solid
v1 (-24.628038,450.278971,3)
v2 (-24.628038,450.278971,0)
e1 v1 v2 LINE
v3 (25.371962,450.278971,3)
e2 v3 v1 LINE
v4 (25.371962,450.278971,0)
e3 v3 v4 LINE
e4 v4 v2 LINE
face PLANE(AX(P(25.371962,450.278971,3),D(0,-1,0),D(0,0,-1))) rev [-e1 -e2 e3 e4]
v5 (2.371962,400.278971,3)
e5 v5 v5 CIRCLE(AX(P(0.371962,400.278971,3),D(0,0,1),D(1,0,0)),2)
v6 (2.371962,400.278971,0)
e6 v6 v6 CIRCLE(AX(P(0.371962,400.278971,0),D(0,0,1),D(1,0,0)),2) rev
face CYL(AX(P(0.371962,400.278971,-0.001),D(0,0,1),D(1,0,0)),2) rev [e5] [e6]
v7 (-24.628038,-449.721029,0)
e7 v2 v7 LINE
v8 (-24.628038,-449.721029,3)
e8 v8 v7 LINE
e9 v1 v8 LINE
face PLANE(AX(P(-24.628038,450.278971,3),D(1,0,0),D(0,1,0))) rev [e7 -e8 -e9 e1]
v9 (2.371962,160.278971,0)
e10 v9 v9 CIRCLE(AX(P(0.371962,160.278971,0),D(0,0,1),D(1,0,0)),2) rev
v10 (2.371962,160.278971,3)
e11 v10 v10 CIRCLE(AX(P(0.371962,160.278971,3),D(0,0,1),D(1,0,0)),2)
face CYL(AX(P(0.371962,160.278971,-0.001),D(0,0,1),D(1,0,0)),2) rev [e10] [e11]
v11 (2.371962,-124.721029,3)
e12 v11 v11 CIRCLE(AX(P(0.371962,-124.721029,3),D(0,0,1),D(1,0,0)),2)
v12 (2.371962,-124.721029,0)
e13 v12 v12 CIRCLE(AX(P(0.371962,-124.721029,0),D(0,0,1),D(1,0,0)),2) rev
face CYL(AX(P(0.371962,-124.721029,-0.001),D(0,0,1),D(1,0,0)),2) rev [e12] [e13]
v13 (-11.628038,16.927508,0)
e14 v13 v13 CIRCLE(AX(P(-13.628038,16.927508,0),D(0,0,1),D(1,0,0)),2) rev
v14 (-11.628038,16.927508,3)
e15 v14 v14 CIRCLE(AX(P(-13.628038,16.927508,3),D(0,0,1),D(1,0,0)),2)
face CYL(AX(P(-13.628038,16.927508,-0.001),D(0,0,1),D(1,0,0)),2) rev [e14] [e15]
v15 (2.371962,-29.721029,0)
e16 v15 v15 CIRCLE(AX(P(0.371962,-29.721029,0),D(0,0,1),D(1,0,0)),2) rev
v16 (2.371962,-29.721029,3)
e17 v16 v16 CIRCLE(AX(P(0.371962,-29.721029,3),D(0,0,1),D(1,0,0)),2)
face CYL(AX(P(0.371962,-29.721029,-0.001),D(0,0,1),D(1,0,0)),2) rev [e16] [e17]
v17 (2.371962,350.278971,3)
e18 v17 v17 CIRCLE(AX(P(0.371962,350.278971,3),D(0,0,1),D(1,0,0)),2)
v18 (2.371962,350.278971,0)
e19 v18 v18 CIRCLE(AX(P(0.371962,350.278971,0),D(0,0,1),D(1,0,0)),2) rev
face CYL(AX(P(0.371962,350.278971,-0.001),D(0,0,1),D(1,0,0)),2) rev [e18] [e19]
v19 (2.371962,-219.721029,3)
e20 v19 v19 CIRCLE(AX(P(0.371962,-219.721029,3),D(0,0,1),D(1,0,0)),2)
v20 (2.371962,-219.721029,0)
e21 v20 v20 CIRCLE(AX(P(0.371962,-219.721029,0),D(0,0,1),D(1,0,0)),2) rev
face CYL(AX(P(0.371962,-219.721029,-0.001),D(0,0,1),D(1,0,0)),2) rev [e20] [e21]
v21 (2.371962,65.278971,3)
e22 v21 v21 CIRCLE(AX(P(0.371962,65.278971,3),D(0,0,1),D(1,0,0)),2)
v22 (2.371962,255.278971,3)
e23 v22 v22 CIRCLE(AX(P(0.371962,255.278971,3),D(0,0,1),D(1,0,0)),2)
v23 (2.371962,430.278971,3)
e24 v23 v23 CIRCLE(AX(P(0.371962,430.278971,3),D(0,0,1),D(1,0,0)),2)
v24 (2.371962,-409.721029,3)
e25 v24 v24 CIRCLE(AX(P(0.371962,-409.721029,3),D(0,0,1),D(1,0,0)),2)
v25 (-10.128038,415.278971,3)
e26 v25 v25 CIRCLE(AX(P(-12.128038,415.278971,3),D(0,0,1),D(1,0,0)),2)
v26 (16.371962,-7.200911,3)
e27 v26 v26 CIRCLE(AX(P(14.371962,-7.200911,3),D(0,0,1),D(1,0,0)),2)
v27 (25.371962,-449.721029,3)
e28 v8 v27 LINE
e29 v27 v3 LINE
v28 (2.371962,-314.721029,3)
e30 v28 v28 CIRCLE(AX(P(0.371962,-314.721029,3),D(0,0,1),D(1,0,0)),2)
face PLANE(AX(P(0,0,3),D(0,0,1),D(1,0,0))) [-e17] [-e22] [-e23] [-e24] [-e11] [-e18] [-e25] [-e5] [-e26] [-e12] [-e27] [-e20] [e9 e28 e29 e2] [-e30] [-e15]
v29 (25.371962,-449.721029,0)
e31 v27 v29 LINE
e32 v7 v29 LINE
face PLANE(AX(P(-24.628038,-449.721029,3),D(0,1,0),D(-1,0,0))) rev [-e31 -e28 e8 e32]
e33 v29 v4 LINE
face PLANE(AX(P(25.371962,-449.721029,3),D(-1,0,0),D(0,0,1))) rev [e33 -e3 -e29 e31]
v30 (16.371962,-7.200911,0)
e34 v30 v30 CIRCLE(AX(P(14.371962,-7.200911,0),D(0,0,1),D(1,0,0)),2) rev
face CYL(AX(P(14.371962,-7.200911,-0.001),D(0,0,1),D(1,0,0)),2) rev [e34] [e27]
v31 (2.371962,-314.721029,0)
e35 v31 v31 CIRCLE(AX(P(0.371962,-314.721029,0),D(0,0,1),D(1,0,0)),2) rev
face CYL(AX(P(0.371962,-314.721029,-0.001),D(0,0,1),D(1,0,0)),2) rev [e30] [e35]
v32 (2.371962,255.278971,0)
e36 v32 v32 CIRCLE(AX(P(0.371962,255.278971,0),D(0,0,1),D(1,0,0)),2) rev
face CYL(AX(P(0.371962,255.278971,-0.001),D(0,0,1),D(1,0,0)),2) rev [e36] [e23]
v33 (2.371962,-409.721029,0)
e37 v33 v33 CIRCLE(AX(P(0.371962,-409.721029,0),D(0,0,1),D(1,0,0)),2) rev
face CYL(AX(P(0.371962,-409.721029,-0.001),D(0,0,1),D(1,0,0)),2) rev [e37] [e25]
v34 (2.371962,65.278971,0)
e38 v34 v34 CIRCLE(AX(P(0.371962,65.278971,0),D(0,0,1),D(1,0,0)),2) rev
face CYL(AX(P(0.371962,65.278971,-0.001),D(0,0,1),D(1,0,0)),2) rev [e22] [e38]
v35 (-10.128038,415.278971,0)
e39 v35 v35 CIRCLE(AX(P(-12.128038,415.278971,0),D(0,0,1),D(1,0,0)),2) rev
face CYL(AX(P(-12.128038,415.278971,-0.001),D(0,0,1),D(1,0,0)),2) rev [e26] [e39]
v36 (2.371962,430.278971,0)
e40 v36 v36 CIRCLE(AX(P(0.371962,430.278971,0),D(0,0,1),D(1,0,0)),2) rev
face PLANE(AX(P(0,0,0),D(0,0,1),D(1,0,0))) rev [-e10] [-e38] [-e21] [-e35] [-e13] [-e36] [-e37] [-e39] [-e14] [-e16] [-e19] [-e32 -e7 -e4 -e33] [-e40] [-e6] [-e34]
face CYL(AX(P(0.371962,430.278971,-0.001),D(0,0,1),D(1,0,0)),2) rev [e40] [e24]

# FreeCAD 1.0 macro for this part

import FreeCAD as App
import Part
import Sketcher

V = App.Vector
Q = App.Units.Quantity


def add_polygon(sketch, points):
    """Adds a closed chain of lines whose ends are joined by coincident constraints."""
    first, n = sketch.GeometryCount, len(points)
    for a, b in zip(points, points[1:] + points[:1]):
        sketch.addGeometry(Part.LineSegment(App.Vector(*a, 0), App.Vector(*b, 0)), False)
    for i in range(n):
        sketch.addConstraint(Sketcher.Constraint("Coincident", first + i, 2, first + (i + 1) % n, 1))

doc = App.newDocument("Part")
body = doc.addObject("PartDesign::Body", "Body")

sketch1 = doc.addObject("Sketcher::SketchObject", "Sketch")
body.addObject(sketch1)
sketch1.AttachmentSupport = (doc.XY_Plane, [""])
sketch1.MapMode = "FlatFace"
add_polygon(sketch1, [(-24.628038, 450.278971), (-24.628038, -449.721029), (25.371962, -449.721029), (25.371962, 450.278971)])
sketch1.addConstraint([
    Sketcher.Constraint("Vertical", 0),
    Sketcher.Constraint("Horizontal", 1),
    Sketcher.Constraint("Vertical", 2),
    Sketcher.Constraint("Horizontal", 3),
    Sketcher.Constraint("DistanceX", 1, 1, 1, 2, Q("50 mm")),
    Sketcher.Constraint("DistanceY", 0, 2, 0, 1, Q("900 mm")),
    Sketcher.Constraint("DistanceX", 0, 2, -1, 1, Q("24.628038 mm")),
    Sketcher.Constraint("DistanceY", 0, 2, -1, 1, Q("449.721029 mm")),
])
pad1 = doc.addObject("PartDesign::Pad", "Pad")
body.addObject(pad1)
pad1.Profile = sketch1
pad1.Length = 3

sketch2 = doc.addObject("Sketcher::SketchObject", "Sketch001")
body.addObject(sketch2)
sketch2.AttachmentSupport = (doc.XY_Plane, [""])
sketch2.MapMode = "FlatFace"
sketch2.AttachmentOffset = App.Placement(V(0, 0, 3), App.Rotation())
sketch2.addGeometry(Part.Circle(V(0.371962, 350.278971, 0), V(0, 0, 1), 2), False)
sketch2.addConstraint([
    Sketcher.Constraint("Diameter", 0, Q("4 mm")),
    Sketcher.Constraint("DistanceX", -1, 1, 0, 3, Q("0.371962 mm")),
    Sketcher.Constraint("DistanceY", -1, 1, 0, 3, Q("350.278971 mm")),
])
pocket1 = doc.addObject("PartDesign::Pocket", "Pocket")
body.addObject(pocket1)
pocket1.Profile = sketch2
pocket1.Type = "UpToFirst"

sketch3 = doc.addObject("Sketcher::SketchObject", "Sketch002")
body.addObject(sketch3)
sketch3.AttachmentSupport = (doc.XY_Plane, [""])
sketch3.MapMode = "FlatFace"
sketch3.AttachmentOffset = App.Placement(V(0, 0, 3), App.Rotation())
sketch3.addGeometry(Part.Circle(V(0.371962, 400.278971, 0), V(0, 0, 1), 2), False)
sketch3.addConstraint([
    Sketcher.Constraint("Diameter", 0, Q("4 mm")),
    Sketcher.Constraint("DistanceX", -1, 1, 0, 3, Q("0.371962 mm")),
    Sketcher.Constraint("DistanceY", -1, 1, 0, 3, Q("400.278971 mm")),
])
pocket2 = doc.addObject("PartDesign::Pocket", "Pocket001")
body.addObject(pocket2)
pocket2.Profile = sketch3
pocket2.Type = "UpToFirst"

sketch4 = doc.addObject("Sketcher::SketchObject", "Sketch003")
body.addObject(sketch4)
sketch4.AttachmentSupport = (doc.XY_Plane, [""])
sketch4.MapMode = "FlatFace"
sketch4.AttachmentOffset = App.Placement(V(0, 0, 3), App.Rotation())
sketch4.addGeometry(Part.Circle(V(0.371962, 430.278971, 0), V(0, 0, 1), 2), False)
sketch4.addConstraint([
    Sketcher.Constraint("Diameter", 0, Q("4 mm")),
    Sketcher.Constraint("DistanceX", -1, 1, 0, 3, Q("0.371962 mm")),
    Sketcher.Constraint("DistanceY", -1, 1, 0, 3, Q("430.278971 mm")),
])
pocket3 = doc.addObject("PartDesign::Pocket", "Pocket002")
body.addObject(pocket3)
pocket3.Profile = sketch4
pocket3.Type = "UpToFirst"

sketch5 = doc.addObject("Sketcher::SketchObject", "Sketch004")
body.addObject(sketch5)
sketch5.AttachmentSupport = (doc.XY_Plane, [""])
sketch5.MapMode = "FlatFace"
sketch5.AttachmentOffset = App.Placement(V(0, 0, 3), App.Rotation())
sketch5.addGeometry(Part.Circle(V(-12.128038, 415.278971, 0), V(0, 0, 1), 2), False)
sketch5.addConstraint([
    Sketcher.Constraint("Diameter", 0, Q("4 mm")),
    Sketcher.Constraint("DistanceX", 0, 3, -1, 1, Q("12.128038 mm")),
    Sketcher.Constraint("DistanceY", -1, 1, 0, 3, Q("415.278971 mm")),
])
pocket4 = doc.addObject("PartDesign::Pocket", "Pocket003")
body.addObject(pocket4)
pocket4.Profile = sketch5
pocket4.Type = "UpToFirst"

sketch6 = doc.addObject("Sketcher::SketchObject", "Sketch005")
body.addObject(sketch6)
sketch6.AttachmentSupport = (doc.XY_Plane, [""])
sketch6.MapMode = "FlatFace"
sketch6.AttachmentOffset = App.Placement(V(0, 0, 3), App.Rotation())
sketch6.addGeometry(Part.Circle(V(0.371962, 255.278971, 0), V(0, 0, 1), 2), False)
sketch6.addConstraint([
    Sketcher.Constraint("Diameter", 0, Q("4 mm")),
    Sketcher.Constraint("DistanceX", -1, 1, 0, 3, Q("0.371962 mm")),
    Sketcher.Constraint("DistanceY", -1, 1, 0, 3, Q("255.278971 mm")),
])
pocket5 = doc.addObject("PartDesign::Pocket", "Pocket004")
body.addObject(pocket5)
pocket5.Profile = sketch6
pocket5.Type = "UpToFirst"

sketch7 = doc.addObject("Sketcher::SketchObject", "Sketch006")
body.addObject(sketch7)
sketch7.AttachmentSupport = (doc.XY_Plane, [""])
sketch7.MapMode = "FlatFace"
sketch7.AttachmentOffset = App.Placement(V(0, 0, 3), App.Rotation())
sketch7.addGeometry(Part.Circle(V(0.371962, 160.278971, 0), V(0, 0, 1), 2), False)
sketch7.addConstraint([
    Sketcher.Constraint("Diameter", 0, Q("4 mm")),
    Sketcher.Constraint("DistanceX", -1, 1, 0, 3, Q("0.371962 mm")),
    Sketcher.Constraint("DistanceY", -1, 1, 0, 3, Q("160.278971 mm")),
])
pocket6 = doc.addObject("PartDesign::Pocket", "Pocket005")
body.addObject(pocket6)
pocket6.Profile = sketch7
pocket6.Type = "UpToFirst"

sketch8 = doc.addObject("Sketcher::SketchObject", "Sketch007")
body.addObject(sketch8)
sketch8.AttachmentSupport = (doc.XY_Plane, [""])
sketch8.MapMode = "FlatFace"
sketch8.AttachmentOffset = App.Placement(V(0, 0, 3), App.Rotation())
sketch8.addGeometry(Part.Circle(V(0.371962, 65.278971, 0), V(0, 0, 1), 2), False)
sketch8.addConstraint([
    Sketcher.Constraint("Diameter", 0, Q("4 mm")),
    Sketcher.Constraint("DistanceX", -1, 1, 0, 3, Q("0.371962 mm")),
    Sketcher.Constraint("DistanceY", -1, 1, 0, 3, Q("65.278971 mm")),
])
pocket7 = doc.addObject("PartDesign::Pocket", "Pocket006")
body.addObject(pocket7)
pocket7.Profile = sketch8
pocket7.Type = "UpToFirst"

sketch9 = doc.addObject("Sketcher::SketchObject", "Sketch008")
body.addObject(sketch9)
sketch9.AttachmentSupport = (doc.XY_Plane, [""])
sketch9.MapMode = "FlatFace"
sketch9.AttachmentOffset = App.Placement(V(0, 0, 3), App.Rotation())
sketch9.addGeometry(Part.Circle(V(0.371962, -29.721029, 0), V(0, 0, 1), 2), False)
sketch9.addConstraint([
    Sketcher.Constraint("Diameter", 0, Q("4 mm")),
    Sketcher.Constraint("DistanceX", -1, 1, 0, 3, Q("0.371962 mm")),
    Sketcher.Constraint("DistanceY", 0, 3, -1, 1, Q("29.721029 mm")),
])
pocket8 = doc.addObject("PartDesign::Pocket", "Pocket007")
body.addObject(pocket8)
pocket8.Profile = sketch9
pocket8.Type = "UpToFirst"

sketch10 = doc.addObject("Sketcher::SketchObject", "Sketch009")
body.addObject(sketch10)
sketch10.AttachmentSupport = (doc.XY_Plane, [""])
sketch10.MapMode = "FlatFace"
sketch10.AttachmentOffset = App.Placement(V(0, 0, 3), App.Rotation())
sketch10.addGeometry(Part.Circle(V(0.371962, -124.721029, 0), V(0, 0, 1), 2), False)
sketch10.addConstraint([
    Sketcher.Constraint("Diameter", 0, Q("4 mm")),
    Sketcher.Constraint("DistanceX", -1, 1, 0, 3, Q("0.371962 mm")),
    Sketcher.Constraint("DistanceY", 0, 3, -1, 1, Q("124.721029 mm")),
])
pocket9 = doc.addObject("PartDesign::Pocket", "Pocket008")
body.addObject(pocket9)
pocket9.Profile = sketch10
pocket9.Type = "UpToFirst"

sketch11 = doc.addObject("Sketcher::SketchObject", "Sketch010")
body.addObject(sketch11)
sketch11.AttachmentSupport = (doc.XY_Plane, [""])
sketch11.MapMode = "FlatFace"
sketch11.AttachmentOffset = App.Placement(V(0, 0, 3), App.Rotation())
sketch11.addGeometry(Part.Circle(V(0.371962, -219.721029, 0), V(0, 0, 1), 2), False)
sketch11.addConstraint([
    Sketcher.Constraint("Diameter", 0, Q("4 mm")),
    Sketcher.Constraint("DistanceX", -1, 1, 0, 3, Q("0.371962 mm")),
    Sketcher.Constraint("DistanceY", 0, 3, -1, 1, Q("219.721029 mm")),
])
pocket10 = doc.addObject("PartDesign::Pocket", "Pocket009")
body.addObject(pocket10)
pocket10.Profile = sketch11
pocket10.Type = "UpToFirst"

sketch12 = doc.addObject("Sketcher::SketchObject", "Sketch011")
body.addObject(sketch12)
sketch12.AttachmentSupport = (doc.XY_Plane, [""])
sketch12.MapMode = "FlatFace"
sketch12.AttachmentOffset = App.Placement(V(0, 0, 3), App.Rotation())
sketch12.addGeometry(Part.Circle(V(0.371962, -314.721029, 0), V(0, 0, 1), 2), False)
sketch12.addConstraint([
    Sketcher.Constraint("Diameter", 0, Q("4 mm")),
    Sketcher.Constraint("DistanceX", -1, 1, 0, 3, Q("0.371962 mm")),
    Sketcher.Constraint("DistanceY", 0, 3, -1, 1, Q("314.721029 mm")),
])
pocket11 = doc.addObject("PartDesign::Pocket", "Pocket010")
body.addObject(pocket11)
pocket11.Profile = sketch12
pocket11.Type = "UpToFirst"

sketch13 = doc.addObject("Sketcher::SketchObject", "Sketch012")
body.addObject(sketch13)
sketch13.AttachmentSupport = (doc.XY_Plane, [""])
sketch13.MapMode = "FlatFace"
sketch13.AttachmentOffset = App.Placement(V(0, 0, 3), App.Rotation())
sketch13.addGeometry(Part.Circle(V(0.371962, -409.721029, 0), V(0, 0, 1), 2), False)
sketch13.addConstraint([
    Sketcher.Constraint("Diameter", 0, Q("4 mm")),
    Sketcher.Constraint("DistanceX", -1, 1, 0, 3, Q("0.371962 mm")),
    Sketcher.Constraint("DistanceY", 0, 3, -1, 1, Q("409.721029 mm")),
])
pocket12 = doc.addObject("PartDesign::Pocket", "Pocket011")
body.addObject(pocket12)
pocket12.Profile = sketch13
pocket12.Type = "UpToFirst"

sketch14 = doc.addObject("Sketcher::SketchObject", "Sketch013")
body.addObject(sketch14)
sketch14.AttachmentSupport = (doc.XY_Plane, [""])
sketch14.MapMode = "FlatFace"
sketch14.AttachmentOffset = App.Placement(V(0, 0, 3), App.Rotation())
sketch14.addGeometry(Part.Circle(V(14.371962, -7.200911, 0), V(0, 0, 1), 2), False)
sketch14.addConstraint([
    Sketcher.Constraint("Diameter", 0, Q("4 mm")),
    Sketcher.Constraint("DistanceX", -1, 1, 0, 3, Q("14.371962 mm")),
    Sketcher.Constraint("DistanceY", 0, 3, -1, 1, Q("7.200911 mm")),
])
pocket13 = doc.addObject("PartDesign::Pocket", "Pocket012")
body.addObject(pocket13)
pocket13.Profile = sketch14
pocket13.Type = "UpToFirst"

sketch15 = doc.addObject("Sketcher::SketchObject", "Sketch014")
body.addObject(sketch15)
sketch15.AttachmentSupport = (doc.XY_Plane, [""])
sketch15.MapMode = "FlatFace"
sketch15.AttachmentOffset = App.Placement(V(0, 0, 3), App.Rotation())
sketch15.addGeometry(Part.Circle(V(-13.628038, 16.927508, 0), V(0, 0, 1), 2), False)
sketch15.addConstraint([
    Sketcher.Constraint("Diameter", 0, Q("4 mm")),
    Sketcher.Constraint("DistanceX", 0, 3, -1, 1, Q("13.628038 mm")),
    Sketcher.Constraint("DistanceY", -1, 1, 0, 3, Q("16.927508 mm")),
])
pocket14 = doc.addObject("PartDesign::Pocket", "Pocket013")
body.addObject(pocket14)
pocket14.Profile = sketch15
pocket14.Type = "UpToFirst"

doc.recompute()
